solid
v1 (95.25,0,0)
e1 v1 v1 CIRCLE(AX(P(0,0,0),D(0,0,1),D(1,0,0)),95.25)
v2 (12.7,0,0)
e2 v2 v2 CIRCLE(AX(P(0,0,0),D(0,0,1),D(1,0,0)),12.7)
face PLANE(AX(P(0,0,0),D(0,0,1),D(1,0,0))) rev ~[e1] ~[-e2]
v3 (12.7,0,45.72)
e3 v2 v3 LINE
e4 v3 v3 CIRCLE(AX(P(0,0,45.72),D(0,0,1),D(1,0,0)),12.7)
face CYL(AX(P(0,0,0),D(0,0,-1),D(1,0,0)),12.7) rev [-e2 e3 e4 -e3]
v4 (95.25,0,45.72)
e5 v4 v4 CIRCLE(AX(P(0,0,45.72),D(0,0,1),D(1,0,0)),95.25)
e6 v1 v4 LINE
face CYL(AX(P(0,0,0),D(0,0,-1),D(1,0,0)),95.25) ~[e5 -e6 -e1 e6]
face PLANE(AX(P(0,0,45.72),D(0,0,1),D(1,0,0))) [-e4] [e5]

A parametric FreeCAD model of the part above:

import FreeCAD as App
import Part
import Sketcher

V = App.Vector
Q = App.Units.Quantity

doc = App.newDocument("Part")
params = doc.addObject("Spreadsheet::Sheet", "Params")
for row, (alias, value) in enumerate([
    ("sketch1_diameter", "1 in"),
    ("sketch1_diameter2", "7.5 in"),
    ("pad1_length", "1.8 in"),
], start=1):
    params.set(f"A{row}", alias)
    params.set(f"B{row}", "=" + value)
    params.setAlias(f"B{row}", alias)

body = doc.addObject("PartDesign::Body", "Body")

sketch1 = body.newObject("Sketcher::SketchObject", "Sketch")
sketch1.AttachmentSupport = (doc.getObject("XY_Plane"), [""])
sketch1.MapMode = "FlatFace"
sketch1.addGeometry([
    Part.Circle(V(0, 0, 0), V(0, 0, 1), 95),
    Part.Circle(V(0, 0, 0), V(0, 0, 1), 13),
], False)
sketch1.addConstraint([
    Sketcher.Constraint("Coincident", 0, 3, -1, 1),
    Sketcher.Constraint("Coincident", 1, 3, -1, 1),
    Sketcher.Constraint("Diameter", 1, Q("1 in")),
    Sketcher.Constraint("Diameter", 0, Q("7.5 in")),
])
sketch1.setExpression("Constraints[2]", "Params.sketch1_diameter")
sketch1.setExpression("Constraints[3]", "Params.sketch1_diameter2")
pad1 = body.newObject("PartDesign::Pad", "Pad")
pad1.Profile = sketch1
pad1.setExpression("Length", "Params.pad1_length")

doc.recompute()
